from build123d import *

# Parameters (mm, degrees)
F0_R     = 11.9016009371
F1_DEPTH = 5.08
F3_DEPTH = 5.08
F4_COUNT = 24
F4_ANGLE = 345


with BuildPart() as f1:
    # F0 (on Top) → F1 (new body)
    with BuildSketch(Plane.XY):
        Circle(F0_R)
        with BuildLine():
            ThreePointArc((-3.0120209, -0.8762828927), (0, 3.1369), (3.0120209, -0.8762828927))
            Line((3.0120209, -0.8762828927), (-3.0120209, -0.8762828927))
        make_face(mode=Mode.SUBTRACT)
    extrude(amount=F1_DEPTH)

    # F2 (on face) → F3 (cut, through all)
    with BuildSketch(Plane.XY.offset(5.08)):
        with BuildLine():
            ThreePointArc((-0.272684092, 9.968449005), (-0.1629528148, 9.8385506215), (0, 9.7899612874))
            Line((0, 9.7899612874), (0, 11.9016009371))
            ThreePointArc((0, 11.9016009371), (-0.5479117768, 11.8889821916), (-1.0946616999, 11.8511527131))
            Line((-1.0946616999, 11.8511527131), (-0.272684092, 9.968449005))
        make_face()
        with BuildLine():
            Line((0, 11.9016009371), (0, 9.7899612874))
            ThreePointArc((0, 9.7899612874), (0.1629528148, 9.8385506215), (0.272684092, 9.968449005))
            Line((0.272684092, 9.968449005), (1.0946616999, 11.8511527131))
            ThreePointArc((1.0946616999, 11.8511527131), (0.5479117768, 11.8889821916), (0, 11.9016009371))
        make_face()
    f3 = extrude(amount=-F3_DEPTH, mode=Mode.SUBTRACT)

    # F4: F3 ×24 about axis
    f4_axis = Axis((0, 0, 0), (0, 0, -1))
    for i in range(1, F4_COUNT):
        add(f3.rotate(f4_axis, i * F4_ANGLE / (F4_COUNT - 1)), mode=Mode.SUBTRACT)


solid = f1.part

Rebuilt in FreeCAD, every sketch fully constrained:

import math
import FreeCAD as App
import Part
import Sketcher
Q = App.Units.Quantity

doc = App.newDocument("Part")
body = doc.addObject("PartDesign::Body", "Body")

# Sketch on XY plane
sketch1 = body.newObject("Sketcher::SketchObject", "Sketch")
sketch1.AttachmentSupport = (doc.getObject("XY_Plane"), [""])
sketch1.MapMode = "FlatFace"
sketch1.addGeometry([
    Part.Circle(App.Vector(0, 0, 0), App.Vector(0, 0, 1), 11.901601),
    Part.LineSegment(App.Vector(3.012021, -0.876283, 0), App.Vector(-3.012021, -0.876283, 0)),
    Part.ArcOfCircle(Part.Circle(App.Vector(0, 0, 0), App.Vector(0, 0, 1), 3.1369), math.radians(-16.221222), math.radians(196.221222)),
], False)
sketch1.addConstraint([
    Sketcher.Constraint("Coincident", 1, 1, 2, 1),
    Sketcher.Constraint("Coincident", 2, 2, 1, 2),
    Sketcher.Constraint("Horizontal", 1),
    Sketcher.Constraint("Coincident", 0, 3, -1, 1),
    Sketcher.Constraint("Coincident", 2, 3, -1, 1),
    Sketcher.Constraint("Radius", 2, Q("0.1235 in")),
    Sketcher.Constraint("Diameter", 0, Q("23.803202 mm")),
    Sketcher.Constraint("DistanceX", 1, 2, 1, 1, Q("6.024042 mm")),
])
pad1 = body.newObject("PartDesign::Pad", "Pad")
pad1.Profile = sketch1
pad1.Length = Q("0.2 in")

# Sketch on XY plane
sketch2 = body.newObject("Sketcher::SketchObject", "Sketch001")
sketch2.AttachmentSupport = (doc.getObject("XY_Plane"), [""])
sketch2.MapMode = "FlatFace"
sketch2.AttachmentOffset = App.Placement(App.Vector(0, 0, 0.2 * 25.4), App.Rotation())
sketch2.addGeometry([
    Part.ArcOfCircle(Part.Circle(App.Vector(0, 10.087501, 0), App.Vector(0, 0, 1), 0.29754), math.radians(-156.414195), math.radians(-90)),  # 0
    Part.ArcOfCircle(Part.Circle(App.Vector(0, 10.087501, 0), App.Vector(0, 0, 1), 0.29754), math.radians(-90), math.radians(-23.585805)),  # 1
    Part.LineSegment(App.Vector(0.272684, 9.968449, 0), App.Vector(1.094662, 11.851153, 0)),  # 2
    Part.ArcOfCircle(Part.Circle(App.Vector(0, 0, 0), App.Vector(0, 0, 1), 11.901601), math.radians(84.722705), math.radians(90)),  # 3
    Part.ArcOfCircle(Part.Circle(App.Vector(0, 0, 0), App.Vector(0, 0, 1), 11.901601), math.radians(90), math.radians(95.277295)),  # 4
    Part.LineSegment(App.Vector(-1.094662, 11.851153, 0), App.Vector(-0.272684, 9.968449, 0)),  # 5
], False)
sketch2.addConstraint([
    Sketcher.Constraint("Tangent", 0, 2, 1, 1),
    Sketcher.Constraint("Tangent", 1, 2, 2, 1),
    Sketcher.Constraint("Coincident", 2, 2, 3, 1),
    Sketcher.Constraint("Tangent", 3, 2, 4, 1),
    Sketcher.Constraint("Coincident", 4, 2, 5, 1),
    Sketcher.Constraint("Tangent", 5, 2, 0, 1),
    Sketcher.Constraint("Coincident", 3, 3, -1, 1),
    Sketcher.Constraint("Equal", 0, 1),
    Sketcher.Constraint("Equal", 3, 4),
    Sketcher.Constraint("Symmetric", 1, 2, 5, 2, -2),
    Sketcher.Constraint("PointOnObject", 0, 2, -2),
    Sketcher.Constraint("PointOnObject", 3, 2, -2),
    Sketcher.Constraint("Radius", 3, Q("11.901601 mm")),
    Sketcher.Constraint("Radius", 0, Q("0.29754 mm")),
    Sketcher.Constraint("DistanceY", -1, 1, 0, 3, Q("10.087501 mm")),
    Sketcher.Constraint("DistanceY", -1, 1, 1, 2, Q("9.968449 mm")),
])
pocket1 = body.newObject("PartDesign::Pocket", "Pocket")
pocket1.Profile = sketch2
pocket1.Type = "ThroughAll"
doc.recompute()

polarpattern = body.newObject("PartDesign::PolarPattern", "PolarPattern")
polarpattern.Originals = [pocket1]
polarpattern.Axis = (doc.getObject("Z_Axis"), [""])
polarpattern.Angle = 360
polarpattern.Occurrences = 24
body.Tip = polarpattern

doc.recompute()
